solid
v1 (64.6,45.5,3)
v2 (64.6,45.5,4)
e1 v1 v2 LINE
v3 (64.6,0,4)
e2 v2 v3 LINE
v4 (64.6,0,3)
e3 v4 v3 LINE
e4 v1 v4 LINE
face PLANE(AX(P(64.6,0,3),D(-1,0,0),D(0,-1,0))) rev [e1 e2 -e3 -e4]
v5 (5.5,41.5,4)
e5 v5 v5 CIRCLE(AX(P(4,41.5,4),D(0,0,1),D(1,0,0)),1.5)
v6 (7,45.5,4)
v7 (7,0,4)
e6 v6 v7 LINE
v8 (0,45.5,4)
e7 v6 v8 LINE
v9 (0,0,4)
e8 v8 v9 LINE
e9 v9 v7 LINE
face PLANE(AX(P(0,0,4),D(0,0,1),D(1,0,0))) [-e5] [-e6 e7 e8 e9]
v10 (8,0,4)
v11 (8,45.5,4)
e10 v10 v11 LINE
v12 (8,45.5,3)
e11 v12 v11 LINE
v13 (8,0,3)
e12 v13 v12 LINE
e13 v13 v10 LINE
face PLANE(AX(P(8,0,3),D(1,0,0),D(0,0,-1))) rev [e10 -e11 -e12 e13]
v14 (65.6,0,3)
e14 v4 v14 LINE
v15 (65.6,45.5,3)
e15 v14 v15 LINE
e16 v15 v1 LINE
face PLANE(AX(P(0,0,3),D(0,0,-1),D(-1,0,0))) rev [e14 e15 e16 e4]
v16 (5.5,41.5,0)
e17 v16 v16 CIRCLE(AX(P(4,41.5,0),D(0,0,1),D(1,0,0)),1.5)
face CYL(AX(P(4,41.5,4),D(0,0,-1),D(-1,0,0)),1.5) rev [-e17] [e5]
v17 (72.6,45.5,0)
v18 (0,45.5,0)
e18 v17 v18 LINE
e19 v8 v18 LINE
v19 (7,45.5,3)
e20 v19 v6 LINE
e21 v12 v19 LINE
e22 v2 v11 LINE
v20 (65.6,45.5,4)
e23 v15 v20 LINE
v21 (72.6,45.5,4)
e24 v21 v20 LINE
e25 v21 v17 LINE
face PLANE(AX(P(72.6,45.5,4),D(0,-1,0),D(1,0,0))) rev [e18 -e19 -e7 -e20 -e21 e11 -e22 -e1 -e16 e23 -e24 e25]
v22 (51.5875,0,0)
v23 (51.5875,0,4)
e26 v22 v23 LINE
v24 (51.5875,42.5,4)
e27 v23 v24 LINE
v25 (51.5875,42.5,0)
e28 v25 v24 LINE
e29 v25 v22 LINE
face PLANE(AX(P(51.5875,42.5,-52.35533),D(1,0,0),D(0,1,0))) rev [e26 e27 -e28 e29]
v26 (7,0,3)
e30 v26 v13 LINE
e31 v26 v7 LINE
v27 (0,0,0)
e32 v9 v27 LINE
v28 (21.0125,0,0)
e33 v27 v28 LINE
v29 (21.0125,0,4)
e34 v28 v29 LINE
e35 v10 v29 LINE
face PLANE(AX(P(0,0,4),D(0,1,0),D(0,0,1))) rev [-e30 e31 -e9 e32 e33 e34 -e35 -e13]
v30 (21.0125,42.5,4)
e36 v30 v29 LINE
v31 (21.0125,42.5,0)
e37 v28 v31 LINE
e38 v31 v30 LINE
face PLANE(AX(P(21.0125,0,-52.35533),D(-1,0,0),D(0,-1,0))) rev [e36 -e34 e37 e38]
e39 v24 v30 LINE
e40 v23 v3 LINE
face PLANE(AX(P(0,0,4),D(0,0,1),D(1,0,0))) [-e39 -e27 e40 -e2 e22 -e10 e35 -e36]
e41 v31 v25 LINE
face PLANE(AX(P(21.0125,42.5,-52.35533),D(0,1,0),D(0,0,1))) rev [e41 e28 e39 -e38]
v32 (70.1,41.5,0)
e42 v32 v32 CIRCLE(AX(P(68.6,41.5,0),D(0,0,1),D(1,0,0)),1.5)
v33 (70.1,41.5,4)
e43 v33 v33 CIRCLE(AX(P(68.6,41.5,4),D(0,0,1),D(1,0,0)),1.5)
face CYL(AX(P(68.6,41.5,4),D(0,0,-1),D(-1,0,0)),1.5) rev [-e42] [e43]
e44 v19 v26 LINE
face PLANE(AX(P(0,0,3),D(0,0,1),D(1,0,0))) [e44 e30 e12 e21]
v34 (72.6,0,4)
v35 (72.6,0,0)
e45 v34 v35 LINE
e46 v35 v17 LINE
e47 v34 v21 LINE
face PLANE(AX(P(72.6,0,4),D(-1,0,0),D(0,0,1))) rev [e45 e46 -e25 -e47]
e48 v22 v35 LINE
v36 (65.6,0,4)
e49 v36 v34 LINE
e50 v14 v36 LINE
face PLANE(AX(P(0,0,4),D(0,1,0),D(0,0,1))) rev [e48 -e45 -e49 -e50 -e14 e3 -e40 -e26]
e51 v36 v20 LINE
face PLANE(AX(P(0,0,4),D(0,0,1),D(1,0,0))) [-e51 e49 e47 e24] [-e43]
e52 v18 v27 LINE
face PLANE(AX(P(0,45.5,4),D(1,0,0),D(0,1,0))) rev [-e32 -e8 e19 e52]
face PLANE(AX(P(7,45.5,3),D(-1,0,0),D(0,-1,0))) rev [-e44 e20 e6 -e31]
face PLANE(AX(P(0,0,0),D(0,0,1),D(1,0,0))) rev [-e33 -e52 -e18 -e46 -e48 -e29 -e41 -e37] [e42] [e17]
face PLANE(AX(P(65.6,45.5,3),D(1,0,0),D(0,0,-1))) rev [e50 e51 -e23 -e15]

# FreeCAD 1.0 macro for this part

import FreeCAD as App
import Part
import Sketcher
Q = App.Units.Quantity


def add_polygon(sketch, points):
    """Adds a closed chain of lines whose ends are joined by coincident constraints."""
    first, n = sketch.GeometryCount, len(points)
    for a, b in zip(points, points[1:] + points[:1]):
        sketch.addGeometry(Part.LineSegment(App.Vector(*a, 0), App.Vector(*b, 0)), False)
    for i in range(n):
        sketch.addConstraint(Sketcher.Constraint("Coincident", first + i, 2, first + (i + 1) % n, 1))

doc = App.newDocument("Part")
params = doc.addObject("Spreadsheet::Sheet", "Params")
for row, (alias, value) in enumerate([
    ("sketch1_diameter", "3 mm"),
    ("sketch1_width", "72.6 mm"),
    ("sketch1_height", "45.5 mm"),
    ("pad1_length", "4 mm"),
    ("sketch2_width", "1 mm"),
    ("sketch2_height", "45.5 mm"),
    ("pocket1_length", "1 mm"),
    ("sketch3_height", "42.5 mm"),
    ("pocket2_length", "4 mm"),
], start=1):
    params.set(f"A{row}", alias)
    params.set(f"B{row}", "=" + value)
    params.setAlias(f"B{row}", alias)

body = doc.addObject("PartDesign::Body", "Body")

sketch1 = body.newObject("Sketcher::SketchObject", "Sketch")
sketch1.AttachmentSupport = (doc.getObject("XY_Plane"), [""])
sketch1.MapMode = "FlatFace"
add_polygon(sketch1, [(0, 45.5), (0, 0), (72.6, 0), (72.6, 45.5)])
sketch1.addGeometry(Part.Circle(App.Vector(4, 41.5, 0), App.Vector(0, 0, 1), 1.5), False)
sketch1.addGeometry(Part.Circle(App.Vector(68.6, 41.5, 0), App.Vector(0, 0, 1), 1.5), False)
sketch1.addConstraint(Sketcher.Constraint("Vertical", 0))
sketch1.addConstraint(Sketcher.Constraint("Horizontal", 1))
sketch1.addConstraint(Sketcher.Constraint("Vertical", 2))
sketch1.addConstraint(Sketcher.Constraint("Horizontal", 3))
sketch1.addConstraint(Sketcher.Constraint("Coincident", 0, 2, -1, 1))
sketch1.addConstraint(Sketcher.Constraint("Equal", 4, 5))
sketch1.addConstraint(Sketcher.Constraint("Horizontal", 4, 3, 5, 3))
sketch1.addConstraint(Sketcher.Constraint("Diameter", 4, Q("3 mm")))
sketch1.addConstraint(Sketcher.Constraint("DistanceX", 1, 1, 1, 2, Q("72.6 mm")))
sketch1.addConstraint(Sketcher.Constraint("DistanceY", 0, 2, 0, 1, Q("45.5 mm")))
sketch1.addConstraint(Sketcher.Constraint("DistanceX", -1, 1, 4, 3, Q("4 mm")))
sketch1.addConstraint(Sketcher.Constraint("DistanceX", 5, 3, 1, 2, Q("4 mm")))
sketch1.addConstraint(Sketcher.Constraint("DistanceY", 5, 3, 2, 2, Q("4 mm")))
sketch1.setExpression("Constraints[11]", "Params.sketch1_diameter")
sketch1.setExpression("Constraints[12]", "Params.sketch1_width")
sketch1.setExpression("Constraints[13]", "Params.sketch1_height")
pad1 = body.newObject("PartDesign::Pad", "Pad")
pad1.Profile = sketch1
pad1.setExpression("Length", "Params.pad1_length")

sketch2 = body.newObject("Sketcher::SketchObject", "Sketch001")
sketch2.AttachmentSupport = (doc.getObject("XY_Plane"), [""])
sketch2.MapMode = "FlatFace"
sketch2.AttachmentOffset = App.Placement(App.Vector(0, 0, 4), App.Rotation())
add_polygon(sketch2, [(7, 45.5), (7, 0), (8, 0), (8, 45.5)])
add_polygon(sketch2, [(64.6, 45.5), (64.6, 0), (65.6, 0), (65.6, 45.5)])
sketch2.addConstraint(Sketcher.Constraint("Vertical", 0))
sketch2.addConstraint(Sketcher.Constraint("Horizontal", 1))
sketch2.addConstraint(Sketcher.Constraint("Vertical", 2))
sketch2.addConstraint(Sketcher.Constraint("Horizontal", 3))
sketch2.addConstraint(Sketcher.Constraint("Vertical", 4))
sketch2.addConstraint(Sketcher.Constraint("Horizontal", 5))
sketch2.addConstraint(Sketcher.Constraint("Vertical", 6))
sketch2.addConstraint(Sketcher.Constraint("Horizontal", 7))
sketch2.addConstraint(Sketcher.Constraint("PointOnObject", 0, 2, -1))
sketch2.addConstraint(Sketcher.Constraint("PointOnObject", 4, 2, -1))
sketch2.addConstraint(Sketcher.Constraint("Horizontal", 3, 2, 6, 2))
sketch2.addConstraint(Sketcher.Constraint("Equal", 3, 5))
sketch2.addConstraint(Sketcher.Constraint("DistanceX", 1, 1, 1, 2, Q("1 mm")))
sketch2.addConstraint(Sketcher.Constraint("DistanceY", 0, 2, 0, 1, Q("45.5 mm")))
sketch2.addConstraint(Sketcher.Constraint("DistanceX", -1, 1, 0, 2, Q("7 mm")))
sketch2.addConstraint(Sketcher.Constraint("DistanceX", -1, 1, 4, 2, Q("64.6 mm")))
sketch2.setExpression("Constraints[20]", "Params.sketch2_width")
sketch2.setExpression("Constraints[21]", "Params.sketch2_height")
pocket1 = body.newObject("PartDesign::Pocket", "Pocket")
pocket1.Profile = sketch2
pocket1.setExpression("Length", "Params.pocket1_length")

sketch3 = body.newObject("Sketcher::SketchObject", "Sketch002")
sketch3.AttachmentSupport = (doc.getObject("XY_Plane"), [""])
sketch3.MapMode = "FlatFace"
sketch3.AttachmentOffset = App.Placement(App.Vector(0, 0, 4), App.Rotation())
add_polygon(sketch3, [(21, 42), (21, 0), (52, 0), (52, 42)])
sketch3.addConstraint(Sketcher.Constraint("Vertical", 0))
sketch3.addConstraint(Sketcher.Constraint("Horizontal", 1))
sketch3.addConstraint(Sketcher.Constraint("Vertical", 2))
sketch3.addConstraint(Sketcher.Constraint("Horizontal", 3))
sketch3.addConstraint(Sketcher.Constraint("PointOnObject", 0, 2, -1))
sketch3.addConstraint(Sketcher.Constraint("DistanceY", 0, 2, 0, 1, Q("42.5 mm")))
sketch3.addConstraint(Sketcher.Constraint("DistanceX", 1, 1, 1, 2, Q("30.575 mm")))
sketch3.addConstraint(Sketcher.Constraint("DistanceX", -1, 1, 0, 2, Q("21.0125 mm")))
sketch3.setExpression("Constraints[9]", "Params.sketch3_height")
pocket2 = body.newObject("PartDesign::Pocket", "Pocket001")
pocket2.Profile = sketch3
pocket2.setExpression("Length", "Params.pocket2_length")

doc.recompute()
